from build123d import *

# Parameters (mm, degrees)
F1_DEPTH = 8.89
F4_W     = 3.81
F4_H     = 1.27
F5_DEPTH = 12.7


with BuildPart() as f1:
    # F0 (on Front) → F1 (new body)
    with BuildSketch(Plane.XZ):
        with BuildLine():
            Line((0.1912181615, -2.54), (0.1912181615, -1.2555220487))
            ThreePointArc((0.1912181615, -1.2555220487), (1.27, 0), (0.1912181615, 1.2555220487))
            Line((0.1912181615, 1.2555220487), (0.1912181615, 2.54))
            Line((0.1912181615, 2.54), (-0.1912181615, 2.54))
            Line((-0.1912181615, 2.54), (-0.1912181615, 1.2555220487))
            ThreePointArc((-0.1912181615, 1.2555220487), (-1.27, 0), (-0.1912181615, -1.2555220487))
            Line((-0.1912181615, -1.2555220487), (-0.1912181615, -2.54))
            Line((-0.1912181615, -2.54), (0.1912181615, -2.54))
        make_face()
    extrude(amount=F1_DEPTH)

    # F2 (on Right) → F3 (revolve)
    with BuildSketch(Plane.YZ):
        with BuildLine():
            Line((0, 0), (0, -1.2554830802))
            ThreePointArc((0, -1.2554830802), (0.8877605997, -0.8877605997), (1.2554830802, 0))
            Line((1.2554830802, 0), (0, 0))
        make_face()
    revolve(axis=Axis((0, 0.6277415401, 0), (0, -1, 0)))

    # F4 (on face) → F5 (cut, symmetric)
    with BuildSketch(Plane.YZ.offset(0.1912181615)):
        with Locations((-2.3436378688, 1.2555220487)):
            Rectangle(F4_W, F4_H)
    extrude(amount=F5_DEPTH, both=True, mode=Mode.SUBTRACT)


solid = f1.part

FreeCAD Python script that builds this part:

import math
import FreeCAD as App
import Part
import Sketcher
from FreeCAD import Vector
Q = App.Units.Quantity


def add_polygon(sketch, points):
    """Adds a closed chain of lines whose ends are joined by coincident constraints."""
    first, n = sketch.GeometryCount, len(points)
    for a, b in zip(points, points[1:] + points[:1]):
        sketch.addGeometry(Part.LineSegment(App.Vector(*a, 0), App.Vector(*b, 0)), False)
    for i in range(n):
        sketch.addConstraint(Sketcher.Constraint("Coincident", first + i, 2, first + (i + 1) % n, 1))

doc = App.newDocument("Part")
body = doc.addObject("PartDesign::Body", "Body")

# Sketch on XZ plane
sketch1 = body.newObject("Sketcher::SketchObject", "Sketch")
sketch1.AttachmentSupport = (doc.getObject("XZ_Plane"), [""])
sketch1.MapMode = "FlatFace"
sketch1.addGeometry([
    Part.LineSegment(Vector(0.19, -2.54, 0), Vector(0.19, -1.26, 0)),  # 0
    Part.ArcOfCircle(Part.Circle(Vector(0, 0, 0), Vector(0, 0, 1), 1.27), math.radians(-81), math.radians(81)),  # 1
    Part.LineSegment(Vector(0.19, 1.26, 0), Vector(0.19, 2.54, 0)),  # 2
    Part.LineSegment(Vector(0.19, 2.54, 0), Vector(-0.19, 2.54, 0)),  # 3
    Part.LineSegment(Vector(-0.19, 2.54, 0), Vector(-0.19, 1.26, 0)),  # 4
    Part.ArcOfCircle(Part.Circle(Vector(0, 0, 0), Vector(0, 0, 1), 1.27), math.radians(99), math.radians(261)),  # 5
    Part.LineSegment(Vector(-0.19, -1.26, 0), Vector(-0.19, -2.54, 0)),  # 6
    Part.LineSegment(Vector(-0.19, -2.54, 0), Vector(0.19, -2.54, 0)),  # 7
], False)
sketch1.addConstraint([
    Sketcher.Constraint("Coincident", 0, 2, 1, 1),
    Sketcher.Constraint("Coincident", 1, 2, 2, 1),
    Sketcher.Constraint("Coincident", 2, 2, 3, 1),
    Sketcher.Constraint("Coincident", 3, 2, 4, 1),
    Sketcher.Constraint("Coincident", 4, 2, 5, 1),
    Sketcher.Constraint("Coincident", 5, 2, 6, 1),
    Sketcher.Constraint("Coincident", 6, 2, 7, 1),
    Sketcher.Constraint("Coincident", 7, 2, 0, 1),
    Sketcher.Constraint("Vertical", 0),
    Sketcher.Constraint("Vertical", 2),
    Sketcher.Constraint("Horizontal", 3),
    Sketcher.Constraint("Vertical", 4),
    Sketcher.Constraint("Vertical", 6),
    Sketcher.Constraint("Horizontal", 7),
    Sketcher.Constraint("Coincident", 1, 3, -1, 1),
    Sketcher.Constraint("Coincident", 5, 3, -1, 1),
    Sketcher.Constraint("Equal", 1, 5),
    Sketcher.Constraint("Symmetric", 2, 2, 6, 2, -1, 1),
    Sketcher.Constraint("Horizontal", 1, 2, 4, 2),
    Sketcher.Constraint("Horizontal", 0, 2, 5, 2),
    Sketcher.Constraint("Radius", 1, Q("0.05 in")),
    Sketcher.Constraint("DistanceY", -1, 1, 2, 2, Q("0.1 in")),
    Sketcher.Constraint("DistanceX", 3, 2, 3, 1, 0.382436),
])
pad1 = body.newObject("PartDesign::Pad", "Pad")
pad1.Profile = sketch1
pad1.Length = Q("0.35 in")

# Sketch on YZ plane
sketch2 = body.newObject("Sketcher::SketchObject", "Sketch001")
sketch2.AttachmentSupport = (doc.getObject("YZ_Plane"), [""])
sketch2.MapMode = "FlatFace"
sketch2.addGeometry([
    Part.LineSegment(Vector(0, 0, 0), Vector(0, -1.3, 0)),
    Part.ArcOfCircle(Part.Circle(Vector(0, 0, 0), Vector(0, 0, 1), 1.3), math.radians(-90), math.radians(0)),
    Part.LineSegment(Vector(1.3, 0, 0), Vector(0, 0, 0)),
], False)
sketch2.addConstraint([
    Sketcher.Constraint("Coincident", 0, 2, 1, 1),
    Sketcher.Constraint("Coincident", 1, 2, 2, 1),
    Sketcher.Constraint("Coincident", 2, 2, 0, 1),
    Sketcher.Constraint("Vertical", 0),
    Sketcher.Constraint("Horizontal", 2),
    Sketcher.Constraint("Coincident", 1, 3, -1, 1),
    Sketcher.Constraint("Coincident", 2, 2, -1, 1),
    Sketcher.Constraint("Radius", 1, 1.255483),
])
revolution = body.newObject("PartDesign::Revolution", "Revolution")
revolution.Profile = sketch2
revolution.ReferenceAxis = (sketch2, ["H_Axis"])
revolution.Angle = 360

# Sketch on YZ plane
sketch3 = body.newObject("Sketcher::SketchObject", "Sketch002")
sketch3.AttachmentSupport = (doc.getObject("YZ_Plane"), [""])
sketch3.MapMode = "FlatFace"
sketch3.AttachmentOffset = App.Placement(Vector(0, 0, 0.191218), App.Rotation())
add_polygon(sketch3, [(-4.2, 1.9), (-4.2, 0.6), (-0.4, 0.6), (-0.4, 1.9)])  # lines 0-3
sketch3.addConstraint([
    Sketcher.Constraint("Vertical", 0),
    Sketcher.Constraint("Horizontal", 1),
    Sketcher.Constraint("Vertical", 2),
    Sketcher.Constraint("Horizontal", 3),
    Sketcher.Constraint("DistanceX", 1, 1, 1, 2, Q("0.15 in")),
    Sketcher.Constraint("DistanceY", 0, 2, 0, 1, Q("0.05 in")),
    Sketcher.Constraint("DistanceX", 0, 2, -1, 1, 4.248638),
    Sketcher.Constraint("DistanceY", -1, 1, 0, 2, 0.620522),
])
pocket1 = body.newObject("PartDesign::Pocket", "Pocket")
pocket1.Profile = sketch3
pocket1.Length = Q("1 in")
pocket1.Midplane = True

doc.recompute()
